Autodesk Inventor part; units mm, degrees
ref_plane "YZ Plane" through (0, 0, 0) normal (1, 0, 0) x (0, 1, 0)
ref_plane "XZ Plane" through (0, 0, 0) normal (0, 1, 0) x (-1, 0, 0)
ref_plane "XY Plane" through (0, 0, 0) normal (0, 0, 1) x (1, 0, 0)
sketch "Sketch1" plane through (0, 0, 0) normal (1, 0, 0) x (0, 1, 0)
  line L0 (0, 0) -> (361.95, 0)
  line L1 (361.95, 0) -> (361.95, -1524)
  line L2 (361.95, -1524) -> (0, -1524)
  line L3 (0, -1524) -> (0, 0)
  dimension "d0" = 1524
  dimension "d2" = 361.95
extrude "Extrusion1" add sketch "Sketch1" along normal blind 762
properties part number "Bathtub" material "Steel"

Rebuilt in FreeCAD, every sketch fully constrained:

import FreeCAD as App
import Part
import Sketcher
Q = App.Units.Quantity


def add_polygon(sketch, points):
    """Adds a closed chain of lines whose ends are joined by coincident constraints."""
    first, n = sketch.GeometryCount, len(points)
    for a, b in zip(points, points[1:] + points[:1]):
        sketch.addGeometry(Part.LineSegment(App.Vector(*a, 0), App.Vector(*b, 0)), False)
    for i in range(n):
        sketch.addConstraint(Sketcher.Constraint("Coincident", first + i, 2, first + (i + 1) % n, 1))

doc = App.newDocument("Part")
body = doc.addObject("PartDesign::Body", "Body")

# Sketch on YZ plane
sketch1 = body.newObject("Sketcher::SketchObject", "Sketch")
sketch1.AttachmentSupport = (doc.getObject("YZ_Plane"), [""])
sketch1.MapMode = "FlatFace"
add_polygon(sketch1, [(361.95, 0), (0, 0), (0, -1524), (361.95, -1524)])  # lines 0-3
sketch1.addConstraint(Sketcher.Constraint("Horizontal", 0))
sketch1.addConstraint(Sketcher.Constraint("Vertical", 1))
sketch1.addConstraint(Sketcher.Constraint("Horizontal", 2))
sketch1.addConstraint(Sketcher.Constraint("Vertical", 3))
sketch1.addConstraint(Sketcher.Constraint("Coincident", 0, 2, -1, 1))
sketch1.addConstraint(Sketcher.Constraint("DistanceY", 1, 2, 1, 1, Q("60 in")))
sketch1.addConstraint(Sketcher.Constraint("DistanceX", 0, 2, 0, 1, Q("14.25 in")))
pad1 = body.newObject("PartDesign::Pad", "Pad")
pad1.Profile = sketch1
pad1.Length = Q("30 in")

doc.recompute()
